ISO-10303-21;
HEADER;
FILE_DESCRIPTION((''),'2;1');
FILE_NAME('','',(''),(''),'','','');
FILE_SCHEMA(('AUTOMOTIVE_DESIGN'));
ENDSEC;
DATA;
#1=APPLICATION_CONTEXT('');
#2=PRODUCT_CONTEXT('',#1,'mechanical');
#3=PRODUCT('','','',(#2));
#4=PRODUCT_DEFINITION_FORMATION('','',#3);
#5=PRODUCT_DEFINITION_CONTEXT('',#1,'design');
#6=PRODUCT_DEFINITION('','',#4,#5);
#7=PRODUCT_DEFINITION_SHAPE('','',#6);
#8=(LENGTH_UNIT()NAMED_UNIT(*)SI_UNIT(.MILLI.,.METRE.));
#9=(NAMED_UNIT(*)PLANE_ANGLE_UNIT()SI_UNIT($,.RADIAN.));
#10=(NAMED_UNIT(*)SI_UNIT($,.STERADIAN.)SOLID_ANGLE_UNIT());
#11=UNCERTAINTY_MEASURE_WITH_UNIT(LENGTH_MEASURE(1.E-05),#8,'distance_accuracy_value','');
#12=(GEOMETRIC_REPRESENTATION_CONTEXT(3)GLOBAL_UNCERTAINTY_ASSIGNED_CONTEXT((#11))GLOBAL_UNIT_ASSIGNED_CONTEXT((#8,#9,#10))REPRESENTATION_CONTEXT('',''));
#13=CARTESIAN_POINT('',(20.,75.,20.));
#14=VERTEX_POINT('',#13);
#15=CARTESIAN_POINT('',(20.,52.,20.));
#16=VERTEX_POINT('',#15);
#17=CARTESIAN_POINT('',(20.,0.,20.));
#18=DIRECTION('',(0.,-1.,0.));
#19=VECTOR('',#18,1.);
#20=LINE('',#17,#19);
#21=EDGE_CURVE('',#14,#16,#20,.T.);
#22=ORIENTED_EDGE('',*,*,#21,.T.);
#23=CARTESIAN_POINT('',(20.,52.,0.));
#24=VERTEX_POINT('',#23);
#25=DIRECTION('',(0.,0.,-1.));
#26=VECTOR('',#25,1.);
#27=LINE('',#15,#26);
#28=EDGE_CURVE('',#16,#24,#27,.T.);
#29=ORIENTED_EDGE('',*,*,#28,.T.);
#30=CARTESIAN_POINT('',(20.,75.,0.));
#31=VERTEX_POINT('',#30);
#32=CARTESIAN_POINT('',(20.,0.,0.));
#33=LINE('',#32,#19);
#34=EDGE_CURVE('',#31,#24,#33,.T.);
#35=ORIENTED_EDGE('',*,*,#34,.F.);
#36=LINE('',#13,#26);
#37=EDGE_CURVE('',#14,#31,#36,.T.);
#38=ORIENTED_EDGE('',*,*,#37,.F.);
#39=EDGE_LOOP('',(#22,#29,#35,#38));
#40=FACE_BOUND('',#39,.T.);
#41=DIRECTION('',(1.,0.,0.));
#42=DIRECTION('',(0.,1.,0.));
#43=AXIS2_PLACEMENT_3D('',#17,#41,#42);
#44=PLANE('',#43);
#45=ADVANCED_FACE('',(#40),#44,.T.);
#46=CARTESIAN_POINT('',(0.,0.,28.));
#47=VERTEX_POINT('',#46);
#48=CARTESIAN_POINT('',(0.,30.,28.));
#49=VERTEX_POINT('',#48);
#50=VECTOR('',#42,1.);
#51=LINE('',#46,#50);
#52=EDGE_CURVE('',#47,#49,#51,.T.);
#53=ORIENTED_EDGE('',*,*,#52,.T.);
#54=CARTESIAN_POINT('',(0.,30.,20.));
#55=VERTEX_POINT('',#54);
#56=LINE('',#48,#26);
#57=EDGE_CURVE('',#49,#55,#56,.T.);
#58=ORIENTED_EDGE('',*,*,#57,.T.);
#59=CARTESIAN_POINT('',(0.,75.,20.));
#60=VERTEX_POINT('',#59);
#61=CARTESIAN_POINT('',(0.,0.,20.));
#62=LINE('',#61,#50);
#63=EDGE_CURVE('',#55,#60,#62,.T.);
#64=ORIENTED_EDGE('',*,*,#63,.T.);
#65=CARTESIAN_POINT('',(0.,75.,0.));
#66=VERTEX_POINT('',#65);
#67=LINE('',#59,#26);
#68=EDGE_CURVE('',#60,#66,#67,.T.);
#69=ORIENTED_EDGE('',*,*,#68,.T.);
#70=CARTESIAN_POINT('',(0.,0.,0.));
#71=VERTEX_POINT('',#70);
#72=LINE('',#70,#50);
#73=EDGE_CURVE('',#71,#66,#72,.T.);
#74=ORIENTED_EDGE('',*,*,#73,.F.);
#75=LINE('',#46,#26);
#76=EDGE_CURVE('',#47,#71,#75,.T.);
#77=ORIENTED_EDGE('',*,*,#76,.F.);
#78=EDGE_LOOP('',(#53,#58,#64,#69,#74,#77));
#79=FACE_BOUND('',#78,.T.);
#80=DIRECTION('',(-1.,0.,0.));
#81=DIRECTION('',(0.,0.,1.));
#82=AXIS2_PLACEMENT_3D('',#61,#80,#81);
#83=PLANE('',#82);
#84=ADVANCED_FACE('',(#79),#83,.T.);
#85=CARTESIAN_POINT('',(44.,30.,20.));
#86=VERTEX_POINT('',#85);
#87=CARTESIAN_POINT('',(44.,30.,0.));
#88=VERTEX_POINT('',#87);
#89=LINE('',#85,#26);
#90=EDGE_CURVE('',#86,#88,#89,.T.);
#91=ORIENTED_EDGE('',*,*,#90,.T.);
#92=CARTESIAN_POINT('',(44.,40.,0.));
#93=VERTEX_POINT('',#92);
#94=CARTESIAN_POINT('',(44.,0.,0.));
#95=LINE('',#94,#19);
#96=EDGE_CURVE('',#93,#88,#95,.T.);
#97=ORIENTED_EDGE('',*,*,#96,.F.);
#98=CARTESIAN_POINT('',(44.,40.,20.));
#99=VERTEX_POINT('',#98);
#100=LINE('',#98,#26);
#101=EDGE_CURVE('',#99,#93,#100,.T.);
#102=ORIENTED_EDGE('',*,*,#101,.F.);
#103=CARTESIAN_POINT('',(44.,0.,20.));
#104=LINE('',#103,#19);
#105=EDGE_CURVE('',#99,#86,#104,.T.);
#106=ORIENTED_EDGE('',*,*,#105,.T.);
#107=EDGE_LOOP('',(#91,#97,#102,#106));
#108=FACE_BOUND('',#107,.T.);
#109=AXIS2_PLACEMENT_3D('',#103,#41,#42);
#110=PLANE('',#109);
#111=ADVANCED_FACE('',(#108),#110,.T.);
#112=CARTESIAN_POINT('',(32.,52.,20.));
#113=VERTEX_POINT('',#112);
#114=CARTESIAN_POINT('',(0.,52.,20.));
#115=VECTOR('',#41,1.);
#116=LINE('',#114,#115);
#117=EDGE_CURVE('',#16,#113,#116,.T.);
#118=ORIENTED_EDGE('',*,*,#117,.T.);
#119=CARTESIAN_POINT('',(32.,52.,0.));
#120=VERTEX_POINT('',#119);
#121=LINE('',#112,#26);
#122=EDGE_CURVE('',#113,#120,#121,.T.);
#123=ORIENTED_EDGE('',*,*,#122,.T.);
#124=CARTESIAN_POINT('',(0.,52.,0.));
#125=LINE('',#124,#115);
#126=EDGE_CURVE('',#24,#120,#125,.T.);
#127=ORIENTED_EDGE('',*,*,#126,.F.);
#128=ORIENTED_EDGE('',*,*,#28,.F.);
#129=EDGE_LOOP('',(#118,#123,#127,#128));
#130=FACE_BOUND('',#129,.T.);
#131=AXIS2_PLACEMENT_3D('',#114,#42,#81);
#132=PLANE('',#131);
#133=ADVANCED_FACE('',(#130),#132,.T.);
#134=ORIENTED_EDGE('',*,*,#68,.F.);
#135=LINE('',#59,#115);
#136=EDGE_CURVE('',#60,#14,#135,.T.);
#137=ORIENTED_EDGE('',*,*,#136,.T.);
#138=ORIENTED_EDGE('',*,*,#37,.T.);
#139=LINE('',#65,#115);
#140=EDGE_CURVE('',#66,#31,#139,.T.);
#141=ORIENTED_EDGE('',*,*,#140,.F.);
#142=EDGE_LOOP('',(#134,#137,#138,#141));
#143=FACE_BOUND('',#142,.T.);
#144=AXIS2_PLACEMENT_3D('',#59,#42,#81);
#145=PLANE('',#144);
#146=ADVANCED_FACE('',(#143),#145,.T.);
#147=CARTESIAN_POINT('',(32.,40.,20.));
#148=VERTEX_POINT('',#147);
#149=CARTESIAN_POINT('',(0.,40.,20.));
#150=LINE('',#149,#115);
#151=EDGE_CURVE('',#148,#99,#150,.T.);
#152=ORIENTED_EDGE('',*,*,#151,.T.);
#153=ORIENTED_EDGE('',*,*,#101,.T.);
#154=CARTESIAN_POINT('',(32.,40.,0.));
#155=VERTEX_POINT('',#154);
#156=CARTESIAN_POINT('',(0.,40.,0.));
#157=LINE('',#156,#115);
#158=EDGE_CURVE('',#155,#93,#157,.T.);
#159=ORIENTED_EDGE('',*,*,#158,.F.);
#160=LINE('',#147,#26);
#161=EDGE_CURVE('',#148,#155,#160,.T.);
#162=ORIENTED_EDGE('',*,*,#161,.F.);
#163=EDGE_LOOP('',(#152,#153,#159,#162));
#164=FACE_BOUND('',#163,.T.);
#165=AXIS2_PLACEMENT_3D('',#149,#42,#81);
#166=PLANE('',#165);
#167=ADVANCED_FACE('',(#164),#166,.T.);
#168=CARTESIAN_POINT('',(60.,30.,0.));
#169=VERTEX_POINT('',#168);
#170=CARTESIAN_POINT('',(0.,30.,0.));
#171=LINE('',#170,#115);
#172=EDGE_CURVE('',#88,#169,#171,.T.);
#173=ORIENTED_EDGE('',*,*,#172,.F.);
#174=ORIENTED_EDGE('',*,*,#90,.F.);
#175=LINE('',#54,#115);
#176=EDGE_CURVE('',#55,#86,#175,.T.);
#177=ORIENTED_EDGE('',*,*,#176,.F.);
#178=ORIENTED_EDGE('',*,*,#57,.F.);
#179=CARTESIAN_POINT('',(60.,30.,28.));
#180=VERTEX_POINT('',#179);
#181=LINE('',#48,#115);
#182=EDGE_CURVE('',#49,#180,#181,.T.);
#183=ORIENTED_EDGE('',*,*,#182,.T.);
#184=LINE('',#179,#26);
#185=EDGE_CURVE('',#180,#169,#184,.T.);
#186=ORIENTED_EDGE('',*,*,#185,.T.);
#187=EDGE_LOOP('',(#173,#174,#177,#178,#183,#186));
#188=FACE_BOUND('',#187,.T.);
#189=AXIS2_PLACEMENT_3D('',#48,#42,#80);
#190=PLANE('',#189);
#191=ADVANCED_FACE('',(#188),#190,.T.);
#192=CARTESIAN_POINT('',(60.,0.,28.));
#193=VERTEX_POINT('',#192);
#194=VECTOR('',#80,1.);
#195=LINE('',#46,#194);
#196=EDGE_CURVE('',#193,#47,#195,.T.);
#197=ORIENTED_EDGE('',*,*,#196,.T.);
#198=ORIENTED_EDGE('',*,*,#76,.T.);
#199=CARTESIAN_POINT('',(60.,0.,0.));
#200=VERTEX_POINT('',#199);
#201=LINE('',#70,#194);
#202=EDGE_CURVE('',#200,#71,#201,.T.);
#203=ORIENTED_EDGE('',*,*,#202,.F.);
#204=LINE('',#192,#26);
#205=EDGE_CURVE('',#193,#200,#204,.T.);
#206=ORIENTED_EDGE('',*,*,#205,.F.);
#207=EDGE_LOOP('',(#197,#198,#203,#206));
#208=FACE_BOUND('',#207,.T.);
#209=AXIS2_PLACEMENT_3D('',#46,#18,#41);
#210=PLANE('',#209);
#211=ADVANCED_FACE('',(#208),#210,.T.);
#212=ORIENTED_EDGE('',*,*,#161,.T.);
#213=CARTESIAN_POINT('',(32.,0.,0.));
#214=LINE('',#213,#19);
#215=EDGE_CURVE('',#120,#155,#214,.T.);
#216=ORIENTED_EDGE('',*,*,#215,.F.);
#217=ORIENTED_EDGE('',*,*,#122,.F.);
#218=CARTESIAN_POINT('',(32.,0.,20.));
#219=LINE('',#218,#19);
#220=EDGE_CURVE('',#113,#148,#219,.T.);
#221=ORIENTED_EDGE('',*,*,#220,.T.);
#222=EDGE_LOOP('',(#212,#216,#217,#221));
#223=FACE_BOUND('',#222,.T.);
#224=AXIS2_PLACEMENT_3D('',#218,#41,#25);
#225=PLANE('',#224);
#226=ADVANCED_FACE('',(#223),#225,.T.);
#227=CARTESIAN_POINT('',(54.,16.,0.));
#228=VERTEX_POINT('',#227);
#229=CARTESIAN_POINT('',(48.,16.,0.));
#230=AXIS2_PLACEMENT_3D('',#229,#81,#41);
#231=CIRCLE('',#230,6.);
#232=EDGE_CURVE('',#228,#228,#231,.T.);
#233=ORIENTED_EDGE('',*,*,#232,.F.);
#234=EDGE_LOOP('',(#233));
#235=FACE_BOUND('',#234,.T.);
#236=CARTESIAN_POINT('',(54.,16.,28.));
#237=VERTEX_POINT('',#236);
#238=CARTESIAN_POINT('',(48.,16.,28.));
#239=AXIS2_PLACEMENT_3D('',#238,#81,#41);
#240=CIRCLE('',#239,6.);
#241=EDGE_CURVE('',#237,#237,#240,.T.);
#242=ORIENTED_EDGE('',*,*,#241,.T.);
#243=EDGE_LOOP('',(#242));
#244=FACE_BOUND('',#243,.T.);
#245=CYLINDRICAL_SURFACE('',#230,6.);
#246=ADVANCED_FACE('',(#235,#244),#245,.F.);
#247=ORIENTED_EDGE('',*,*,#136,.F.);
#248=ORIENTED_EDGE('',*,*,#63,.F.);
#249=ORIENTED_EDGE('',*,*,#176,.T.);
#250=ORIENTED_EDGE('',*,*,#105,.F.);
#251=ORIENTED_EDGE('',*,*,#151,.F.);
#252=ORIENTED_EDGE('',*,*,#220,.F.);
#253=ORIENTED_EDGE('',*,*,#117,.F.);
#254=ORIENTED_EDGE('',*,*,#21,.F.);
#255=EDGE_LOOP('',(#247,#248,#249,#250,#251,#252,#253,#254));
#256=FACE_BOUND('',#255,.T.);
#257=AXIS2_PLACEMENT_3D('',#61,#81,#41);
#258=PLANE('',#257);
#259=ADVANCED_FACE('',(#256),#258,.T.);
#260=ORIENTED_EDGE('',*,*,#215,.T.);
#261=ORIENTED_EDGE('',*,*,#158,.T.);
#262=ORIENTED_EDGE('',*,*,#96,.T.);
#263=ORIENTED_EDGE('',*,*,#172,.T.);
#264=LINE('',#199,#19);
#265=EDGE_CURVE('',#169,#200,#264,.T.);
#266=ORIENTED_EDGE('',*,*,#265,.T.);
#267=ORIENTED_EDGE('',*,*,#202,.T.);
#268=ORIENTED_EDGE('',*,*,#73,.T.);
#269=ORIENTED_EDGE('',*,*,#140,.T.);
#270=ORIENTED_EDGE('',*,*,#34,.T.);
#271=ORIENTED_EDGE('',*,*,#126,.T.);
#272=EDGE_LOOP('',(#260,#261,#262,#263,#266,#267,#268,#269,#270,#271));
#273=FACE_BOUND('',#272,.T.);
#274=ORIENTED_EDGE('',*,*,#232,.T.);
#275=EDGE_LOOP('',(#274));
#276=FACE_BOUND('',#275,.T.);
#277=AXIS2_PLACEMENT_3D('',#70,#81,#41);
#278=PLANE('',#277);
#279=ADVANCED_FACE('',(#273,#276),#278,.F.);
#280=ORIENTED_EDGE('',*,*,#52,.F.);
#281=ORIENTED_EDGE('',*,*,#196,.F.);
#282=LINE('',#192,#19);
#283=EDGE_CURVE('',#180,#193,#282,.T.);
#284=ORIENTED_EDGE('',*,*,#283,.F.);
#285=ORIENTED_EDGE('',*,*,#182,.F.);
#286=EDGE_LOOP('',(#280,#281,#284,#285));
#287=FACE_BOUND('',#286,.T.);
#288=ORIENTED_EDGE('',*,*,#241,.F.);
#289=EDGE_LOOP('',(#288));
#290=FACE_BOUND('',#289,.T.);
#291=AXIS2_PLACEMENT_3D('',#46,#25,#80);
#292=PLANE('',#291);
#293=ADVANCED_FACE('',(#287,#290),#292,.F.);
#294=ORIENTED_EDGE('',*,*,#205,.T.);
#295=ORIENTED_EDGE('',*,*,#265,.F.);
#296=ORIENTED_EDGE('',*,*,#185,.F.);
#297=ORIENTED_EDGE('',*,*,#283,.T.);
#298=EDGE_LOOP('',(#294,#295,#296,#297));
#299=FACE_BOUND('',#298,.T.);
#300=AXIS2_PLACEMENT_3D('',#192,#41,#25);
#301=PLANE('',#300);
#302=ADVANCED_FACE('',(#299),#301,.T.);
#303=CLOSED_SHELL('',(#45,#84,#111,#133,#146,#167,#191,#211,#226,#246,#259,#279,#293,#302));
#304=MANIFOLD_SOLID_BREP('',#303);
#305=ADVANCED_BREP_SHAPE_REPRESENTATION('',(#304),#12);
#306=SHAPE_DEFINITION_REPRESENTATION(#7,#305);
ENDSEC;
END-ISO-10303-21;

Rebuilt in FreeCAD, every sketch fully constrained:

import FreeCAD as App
import Part
import Sketcher

V = App.Vector
Q = App.Units.Quantity

doc = App.newDocument("Part")
body = doc.addObject("PartDesign::Body", "Body")

# Sketch on XY plane
sketch1 = body.newObject("Sketcher::SketchObject", "Sketch")
sketch1.AttachmentSupport = (doc.getObject("XY_Plane"), [""])
sketch1.MapMode = "FlatFace"
sketch1.addGeometry([
    Part.LineSegment(V(0, 75, 0), V(0, 30, 0)),  # 0
    Part.LineSegment(V(0, 30, 0), V(44, 30, 0)),  # 1
    Part.LineSegment(V(44, 30, 0), V(44, 40, 0)),  # 2
    Part.LineSegment(V(44, 40, 0), V(32, 40, 0)),  # 3
    Part.LineSegment(V(32, 40, 0), V(32, 52, 0)),  # 4
    Part.LineSegment(V(32, 52, 0), V(20, 52, 0)),  # 5
    Part.LineSegment(V(20, 52, 0), V(20, 75, 0)),  # 6
    Part.LineSegment(V(20, 75, 0), V(0, 75, 0)),  # 7
], False)
sketch1.addConstraint([
    Sketcher.Constraint("Coincident", 0, 2, 1, 1),
    Sketcher.Constraint("Coincident", 1, 2, 2, 1),
    Sketcher.Constraint("Coincident", 2, 2, 3, 1),
    Sketcher.Constraint("Coincident", 3, 2, 4, 1),
    Sketcher.Constraint("Coincident", 4, 2, 5, 1),
    Sketcher.Constraint("Coincident", 5, 2, 6, 1),
    Sketcher.Constraint("Coincident", 6, 2, 7, 1),
    Sketcher.Constraint("Coincident", 7, 2, 0, 1),
    Sketcher.Constraint("Vertical", 0),
    Sketcher.Constraint("Horizontal", 1),
    Sketcher.Constraint("Vertical", 2),
    Sketcher.Constraint("Horizontal", 3),
    Sketcher.Constraint("Vertical", 4),
    Sketcher.Constraint("Horizontal", 5),
    Sketcher.Constraint("Vertical", 6),
    Sketcher.Constraint("Horizontal", 7),
    Sketcher.Constraint("PointOnObject", 0, 2, -2),
    Sketcher.Constraint("Equal", 3, 5),
    Sketcher.Constraint("Equal", 5, 4),
    Sketcher.Constraint("DistanceX", 1, 1, 1, 2, Q("44 mm")),
    Sketcher.Constraint("DistanceX", 3, 2, 3, 1, Q("12 mm")),
    Sketcher.Constraint("DistanceY", 0, 2, 0, 1, Q("45 mm")),
    Sketcher.Constraint("DistanceY", 2, 1, 2, 2, Q("10 mm")),
    Sketcher.Constraint("DistanceY", -1, 1, 0, 2, Q("30 mm")),
])
pad1 = body.newObject("PartDesign::Pad", "Pad")
pad1.Profile = sketch1
pad1.Length = 20

# Sketch on XY plane
sketch2 = body.newObject("Sketcher::SketchObject", "Sketch001")
sketch2.AttachmentSupport = (doc.getObject("XY_Plane"), [""])
sketch2.MapMode = "FlatFace"
sketch2.addGeometry([
    Part.LineSegment(V(60, 30, 0), V(60, 0, 0)),
    Part.LineSegment(V(60, 0, 0), V(0, 0, 0)),
    Part.LineSegment(V(0, 0, 0), V(0, 30, 0)),
    Part.LineSegment(V(0, 30, 0), V(60, 30, 0)),
], False)
sketch2.addConstraint([
    Sketcher.Constraint("Coincident", 0, 2, 1, 1),
    Sketcher.Constraint("Coincident", 1, 2, 2, 1),
    Sketcher.Constraint("Coincident", 2, 2, 3, 1),
    Sketcher.Constraint("Coincident", 3, 2, 0, 1),
    Sketcher.Constraint("Vertical", 0),
    Sketcher.Constraint("Horizontal", 1),
    Sketcher.Constraint("Vertical", 2),
    Sketcher.Constraint("Horizontal", 3),
    Sketcher.Constraint("Coincident", 1, 2, -1, 1),
    Sketcher.Constraint("DistanceX", 1, 2, 1, 1, Q("60 mm")),
    Sketcher.Constraint("DistanceY", 0, 2, 0, 1, Q("30 mm")),
])
pad2 = body.newObject("PartDesign::Pad", "Pad001")
pad2.Profile = sketch2
pad2.Length = 28

# Sketch on XY plane
sketch3 = body.newObject("Sketcher::SketchObject", "Sketch002")
sketch3.AttachmentSupport = (doc.getObject("XY_Plane"), [""])
sketch3.MapMode = "FlatFace"
sketch3.AttachmentOffset = App.Placement(V(0, 0, 28), App.Rotation())
sketch3.addGeometry(Part.Circle(V(48, 16, 0), V(0, 0, 1), 6), False)
sketch3.addConstraint([
    Sketcher.Constraint("Diameter", 0, Q("12 mm")),
    Sketcher.Constraint("DistanceX", -1, 1, 0, 3, Q("48 mm")),
    Sketcher.Constraint("DistanceY", -1, 1, 0, 3, Q("16 mm")),
])
pocket1 = body.newObject("PartDesign::Pocket", "Pocket")
pocket1.Profile = sketch3
pocket1.Length = 28

doc.recompute()
